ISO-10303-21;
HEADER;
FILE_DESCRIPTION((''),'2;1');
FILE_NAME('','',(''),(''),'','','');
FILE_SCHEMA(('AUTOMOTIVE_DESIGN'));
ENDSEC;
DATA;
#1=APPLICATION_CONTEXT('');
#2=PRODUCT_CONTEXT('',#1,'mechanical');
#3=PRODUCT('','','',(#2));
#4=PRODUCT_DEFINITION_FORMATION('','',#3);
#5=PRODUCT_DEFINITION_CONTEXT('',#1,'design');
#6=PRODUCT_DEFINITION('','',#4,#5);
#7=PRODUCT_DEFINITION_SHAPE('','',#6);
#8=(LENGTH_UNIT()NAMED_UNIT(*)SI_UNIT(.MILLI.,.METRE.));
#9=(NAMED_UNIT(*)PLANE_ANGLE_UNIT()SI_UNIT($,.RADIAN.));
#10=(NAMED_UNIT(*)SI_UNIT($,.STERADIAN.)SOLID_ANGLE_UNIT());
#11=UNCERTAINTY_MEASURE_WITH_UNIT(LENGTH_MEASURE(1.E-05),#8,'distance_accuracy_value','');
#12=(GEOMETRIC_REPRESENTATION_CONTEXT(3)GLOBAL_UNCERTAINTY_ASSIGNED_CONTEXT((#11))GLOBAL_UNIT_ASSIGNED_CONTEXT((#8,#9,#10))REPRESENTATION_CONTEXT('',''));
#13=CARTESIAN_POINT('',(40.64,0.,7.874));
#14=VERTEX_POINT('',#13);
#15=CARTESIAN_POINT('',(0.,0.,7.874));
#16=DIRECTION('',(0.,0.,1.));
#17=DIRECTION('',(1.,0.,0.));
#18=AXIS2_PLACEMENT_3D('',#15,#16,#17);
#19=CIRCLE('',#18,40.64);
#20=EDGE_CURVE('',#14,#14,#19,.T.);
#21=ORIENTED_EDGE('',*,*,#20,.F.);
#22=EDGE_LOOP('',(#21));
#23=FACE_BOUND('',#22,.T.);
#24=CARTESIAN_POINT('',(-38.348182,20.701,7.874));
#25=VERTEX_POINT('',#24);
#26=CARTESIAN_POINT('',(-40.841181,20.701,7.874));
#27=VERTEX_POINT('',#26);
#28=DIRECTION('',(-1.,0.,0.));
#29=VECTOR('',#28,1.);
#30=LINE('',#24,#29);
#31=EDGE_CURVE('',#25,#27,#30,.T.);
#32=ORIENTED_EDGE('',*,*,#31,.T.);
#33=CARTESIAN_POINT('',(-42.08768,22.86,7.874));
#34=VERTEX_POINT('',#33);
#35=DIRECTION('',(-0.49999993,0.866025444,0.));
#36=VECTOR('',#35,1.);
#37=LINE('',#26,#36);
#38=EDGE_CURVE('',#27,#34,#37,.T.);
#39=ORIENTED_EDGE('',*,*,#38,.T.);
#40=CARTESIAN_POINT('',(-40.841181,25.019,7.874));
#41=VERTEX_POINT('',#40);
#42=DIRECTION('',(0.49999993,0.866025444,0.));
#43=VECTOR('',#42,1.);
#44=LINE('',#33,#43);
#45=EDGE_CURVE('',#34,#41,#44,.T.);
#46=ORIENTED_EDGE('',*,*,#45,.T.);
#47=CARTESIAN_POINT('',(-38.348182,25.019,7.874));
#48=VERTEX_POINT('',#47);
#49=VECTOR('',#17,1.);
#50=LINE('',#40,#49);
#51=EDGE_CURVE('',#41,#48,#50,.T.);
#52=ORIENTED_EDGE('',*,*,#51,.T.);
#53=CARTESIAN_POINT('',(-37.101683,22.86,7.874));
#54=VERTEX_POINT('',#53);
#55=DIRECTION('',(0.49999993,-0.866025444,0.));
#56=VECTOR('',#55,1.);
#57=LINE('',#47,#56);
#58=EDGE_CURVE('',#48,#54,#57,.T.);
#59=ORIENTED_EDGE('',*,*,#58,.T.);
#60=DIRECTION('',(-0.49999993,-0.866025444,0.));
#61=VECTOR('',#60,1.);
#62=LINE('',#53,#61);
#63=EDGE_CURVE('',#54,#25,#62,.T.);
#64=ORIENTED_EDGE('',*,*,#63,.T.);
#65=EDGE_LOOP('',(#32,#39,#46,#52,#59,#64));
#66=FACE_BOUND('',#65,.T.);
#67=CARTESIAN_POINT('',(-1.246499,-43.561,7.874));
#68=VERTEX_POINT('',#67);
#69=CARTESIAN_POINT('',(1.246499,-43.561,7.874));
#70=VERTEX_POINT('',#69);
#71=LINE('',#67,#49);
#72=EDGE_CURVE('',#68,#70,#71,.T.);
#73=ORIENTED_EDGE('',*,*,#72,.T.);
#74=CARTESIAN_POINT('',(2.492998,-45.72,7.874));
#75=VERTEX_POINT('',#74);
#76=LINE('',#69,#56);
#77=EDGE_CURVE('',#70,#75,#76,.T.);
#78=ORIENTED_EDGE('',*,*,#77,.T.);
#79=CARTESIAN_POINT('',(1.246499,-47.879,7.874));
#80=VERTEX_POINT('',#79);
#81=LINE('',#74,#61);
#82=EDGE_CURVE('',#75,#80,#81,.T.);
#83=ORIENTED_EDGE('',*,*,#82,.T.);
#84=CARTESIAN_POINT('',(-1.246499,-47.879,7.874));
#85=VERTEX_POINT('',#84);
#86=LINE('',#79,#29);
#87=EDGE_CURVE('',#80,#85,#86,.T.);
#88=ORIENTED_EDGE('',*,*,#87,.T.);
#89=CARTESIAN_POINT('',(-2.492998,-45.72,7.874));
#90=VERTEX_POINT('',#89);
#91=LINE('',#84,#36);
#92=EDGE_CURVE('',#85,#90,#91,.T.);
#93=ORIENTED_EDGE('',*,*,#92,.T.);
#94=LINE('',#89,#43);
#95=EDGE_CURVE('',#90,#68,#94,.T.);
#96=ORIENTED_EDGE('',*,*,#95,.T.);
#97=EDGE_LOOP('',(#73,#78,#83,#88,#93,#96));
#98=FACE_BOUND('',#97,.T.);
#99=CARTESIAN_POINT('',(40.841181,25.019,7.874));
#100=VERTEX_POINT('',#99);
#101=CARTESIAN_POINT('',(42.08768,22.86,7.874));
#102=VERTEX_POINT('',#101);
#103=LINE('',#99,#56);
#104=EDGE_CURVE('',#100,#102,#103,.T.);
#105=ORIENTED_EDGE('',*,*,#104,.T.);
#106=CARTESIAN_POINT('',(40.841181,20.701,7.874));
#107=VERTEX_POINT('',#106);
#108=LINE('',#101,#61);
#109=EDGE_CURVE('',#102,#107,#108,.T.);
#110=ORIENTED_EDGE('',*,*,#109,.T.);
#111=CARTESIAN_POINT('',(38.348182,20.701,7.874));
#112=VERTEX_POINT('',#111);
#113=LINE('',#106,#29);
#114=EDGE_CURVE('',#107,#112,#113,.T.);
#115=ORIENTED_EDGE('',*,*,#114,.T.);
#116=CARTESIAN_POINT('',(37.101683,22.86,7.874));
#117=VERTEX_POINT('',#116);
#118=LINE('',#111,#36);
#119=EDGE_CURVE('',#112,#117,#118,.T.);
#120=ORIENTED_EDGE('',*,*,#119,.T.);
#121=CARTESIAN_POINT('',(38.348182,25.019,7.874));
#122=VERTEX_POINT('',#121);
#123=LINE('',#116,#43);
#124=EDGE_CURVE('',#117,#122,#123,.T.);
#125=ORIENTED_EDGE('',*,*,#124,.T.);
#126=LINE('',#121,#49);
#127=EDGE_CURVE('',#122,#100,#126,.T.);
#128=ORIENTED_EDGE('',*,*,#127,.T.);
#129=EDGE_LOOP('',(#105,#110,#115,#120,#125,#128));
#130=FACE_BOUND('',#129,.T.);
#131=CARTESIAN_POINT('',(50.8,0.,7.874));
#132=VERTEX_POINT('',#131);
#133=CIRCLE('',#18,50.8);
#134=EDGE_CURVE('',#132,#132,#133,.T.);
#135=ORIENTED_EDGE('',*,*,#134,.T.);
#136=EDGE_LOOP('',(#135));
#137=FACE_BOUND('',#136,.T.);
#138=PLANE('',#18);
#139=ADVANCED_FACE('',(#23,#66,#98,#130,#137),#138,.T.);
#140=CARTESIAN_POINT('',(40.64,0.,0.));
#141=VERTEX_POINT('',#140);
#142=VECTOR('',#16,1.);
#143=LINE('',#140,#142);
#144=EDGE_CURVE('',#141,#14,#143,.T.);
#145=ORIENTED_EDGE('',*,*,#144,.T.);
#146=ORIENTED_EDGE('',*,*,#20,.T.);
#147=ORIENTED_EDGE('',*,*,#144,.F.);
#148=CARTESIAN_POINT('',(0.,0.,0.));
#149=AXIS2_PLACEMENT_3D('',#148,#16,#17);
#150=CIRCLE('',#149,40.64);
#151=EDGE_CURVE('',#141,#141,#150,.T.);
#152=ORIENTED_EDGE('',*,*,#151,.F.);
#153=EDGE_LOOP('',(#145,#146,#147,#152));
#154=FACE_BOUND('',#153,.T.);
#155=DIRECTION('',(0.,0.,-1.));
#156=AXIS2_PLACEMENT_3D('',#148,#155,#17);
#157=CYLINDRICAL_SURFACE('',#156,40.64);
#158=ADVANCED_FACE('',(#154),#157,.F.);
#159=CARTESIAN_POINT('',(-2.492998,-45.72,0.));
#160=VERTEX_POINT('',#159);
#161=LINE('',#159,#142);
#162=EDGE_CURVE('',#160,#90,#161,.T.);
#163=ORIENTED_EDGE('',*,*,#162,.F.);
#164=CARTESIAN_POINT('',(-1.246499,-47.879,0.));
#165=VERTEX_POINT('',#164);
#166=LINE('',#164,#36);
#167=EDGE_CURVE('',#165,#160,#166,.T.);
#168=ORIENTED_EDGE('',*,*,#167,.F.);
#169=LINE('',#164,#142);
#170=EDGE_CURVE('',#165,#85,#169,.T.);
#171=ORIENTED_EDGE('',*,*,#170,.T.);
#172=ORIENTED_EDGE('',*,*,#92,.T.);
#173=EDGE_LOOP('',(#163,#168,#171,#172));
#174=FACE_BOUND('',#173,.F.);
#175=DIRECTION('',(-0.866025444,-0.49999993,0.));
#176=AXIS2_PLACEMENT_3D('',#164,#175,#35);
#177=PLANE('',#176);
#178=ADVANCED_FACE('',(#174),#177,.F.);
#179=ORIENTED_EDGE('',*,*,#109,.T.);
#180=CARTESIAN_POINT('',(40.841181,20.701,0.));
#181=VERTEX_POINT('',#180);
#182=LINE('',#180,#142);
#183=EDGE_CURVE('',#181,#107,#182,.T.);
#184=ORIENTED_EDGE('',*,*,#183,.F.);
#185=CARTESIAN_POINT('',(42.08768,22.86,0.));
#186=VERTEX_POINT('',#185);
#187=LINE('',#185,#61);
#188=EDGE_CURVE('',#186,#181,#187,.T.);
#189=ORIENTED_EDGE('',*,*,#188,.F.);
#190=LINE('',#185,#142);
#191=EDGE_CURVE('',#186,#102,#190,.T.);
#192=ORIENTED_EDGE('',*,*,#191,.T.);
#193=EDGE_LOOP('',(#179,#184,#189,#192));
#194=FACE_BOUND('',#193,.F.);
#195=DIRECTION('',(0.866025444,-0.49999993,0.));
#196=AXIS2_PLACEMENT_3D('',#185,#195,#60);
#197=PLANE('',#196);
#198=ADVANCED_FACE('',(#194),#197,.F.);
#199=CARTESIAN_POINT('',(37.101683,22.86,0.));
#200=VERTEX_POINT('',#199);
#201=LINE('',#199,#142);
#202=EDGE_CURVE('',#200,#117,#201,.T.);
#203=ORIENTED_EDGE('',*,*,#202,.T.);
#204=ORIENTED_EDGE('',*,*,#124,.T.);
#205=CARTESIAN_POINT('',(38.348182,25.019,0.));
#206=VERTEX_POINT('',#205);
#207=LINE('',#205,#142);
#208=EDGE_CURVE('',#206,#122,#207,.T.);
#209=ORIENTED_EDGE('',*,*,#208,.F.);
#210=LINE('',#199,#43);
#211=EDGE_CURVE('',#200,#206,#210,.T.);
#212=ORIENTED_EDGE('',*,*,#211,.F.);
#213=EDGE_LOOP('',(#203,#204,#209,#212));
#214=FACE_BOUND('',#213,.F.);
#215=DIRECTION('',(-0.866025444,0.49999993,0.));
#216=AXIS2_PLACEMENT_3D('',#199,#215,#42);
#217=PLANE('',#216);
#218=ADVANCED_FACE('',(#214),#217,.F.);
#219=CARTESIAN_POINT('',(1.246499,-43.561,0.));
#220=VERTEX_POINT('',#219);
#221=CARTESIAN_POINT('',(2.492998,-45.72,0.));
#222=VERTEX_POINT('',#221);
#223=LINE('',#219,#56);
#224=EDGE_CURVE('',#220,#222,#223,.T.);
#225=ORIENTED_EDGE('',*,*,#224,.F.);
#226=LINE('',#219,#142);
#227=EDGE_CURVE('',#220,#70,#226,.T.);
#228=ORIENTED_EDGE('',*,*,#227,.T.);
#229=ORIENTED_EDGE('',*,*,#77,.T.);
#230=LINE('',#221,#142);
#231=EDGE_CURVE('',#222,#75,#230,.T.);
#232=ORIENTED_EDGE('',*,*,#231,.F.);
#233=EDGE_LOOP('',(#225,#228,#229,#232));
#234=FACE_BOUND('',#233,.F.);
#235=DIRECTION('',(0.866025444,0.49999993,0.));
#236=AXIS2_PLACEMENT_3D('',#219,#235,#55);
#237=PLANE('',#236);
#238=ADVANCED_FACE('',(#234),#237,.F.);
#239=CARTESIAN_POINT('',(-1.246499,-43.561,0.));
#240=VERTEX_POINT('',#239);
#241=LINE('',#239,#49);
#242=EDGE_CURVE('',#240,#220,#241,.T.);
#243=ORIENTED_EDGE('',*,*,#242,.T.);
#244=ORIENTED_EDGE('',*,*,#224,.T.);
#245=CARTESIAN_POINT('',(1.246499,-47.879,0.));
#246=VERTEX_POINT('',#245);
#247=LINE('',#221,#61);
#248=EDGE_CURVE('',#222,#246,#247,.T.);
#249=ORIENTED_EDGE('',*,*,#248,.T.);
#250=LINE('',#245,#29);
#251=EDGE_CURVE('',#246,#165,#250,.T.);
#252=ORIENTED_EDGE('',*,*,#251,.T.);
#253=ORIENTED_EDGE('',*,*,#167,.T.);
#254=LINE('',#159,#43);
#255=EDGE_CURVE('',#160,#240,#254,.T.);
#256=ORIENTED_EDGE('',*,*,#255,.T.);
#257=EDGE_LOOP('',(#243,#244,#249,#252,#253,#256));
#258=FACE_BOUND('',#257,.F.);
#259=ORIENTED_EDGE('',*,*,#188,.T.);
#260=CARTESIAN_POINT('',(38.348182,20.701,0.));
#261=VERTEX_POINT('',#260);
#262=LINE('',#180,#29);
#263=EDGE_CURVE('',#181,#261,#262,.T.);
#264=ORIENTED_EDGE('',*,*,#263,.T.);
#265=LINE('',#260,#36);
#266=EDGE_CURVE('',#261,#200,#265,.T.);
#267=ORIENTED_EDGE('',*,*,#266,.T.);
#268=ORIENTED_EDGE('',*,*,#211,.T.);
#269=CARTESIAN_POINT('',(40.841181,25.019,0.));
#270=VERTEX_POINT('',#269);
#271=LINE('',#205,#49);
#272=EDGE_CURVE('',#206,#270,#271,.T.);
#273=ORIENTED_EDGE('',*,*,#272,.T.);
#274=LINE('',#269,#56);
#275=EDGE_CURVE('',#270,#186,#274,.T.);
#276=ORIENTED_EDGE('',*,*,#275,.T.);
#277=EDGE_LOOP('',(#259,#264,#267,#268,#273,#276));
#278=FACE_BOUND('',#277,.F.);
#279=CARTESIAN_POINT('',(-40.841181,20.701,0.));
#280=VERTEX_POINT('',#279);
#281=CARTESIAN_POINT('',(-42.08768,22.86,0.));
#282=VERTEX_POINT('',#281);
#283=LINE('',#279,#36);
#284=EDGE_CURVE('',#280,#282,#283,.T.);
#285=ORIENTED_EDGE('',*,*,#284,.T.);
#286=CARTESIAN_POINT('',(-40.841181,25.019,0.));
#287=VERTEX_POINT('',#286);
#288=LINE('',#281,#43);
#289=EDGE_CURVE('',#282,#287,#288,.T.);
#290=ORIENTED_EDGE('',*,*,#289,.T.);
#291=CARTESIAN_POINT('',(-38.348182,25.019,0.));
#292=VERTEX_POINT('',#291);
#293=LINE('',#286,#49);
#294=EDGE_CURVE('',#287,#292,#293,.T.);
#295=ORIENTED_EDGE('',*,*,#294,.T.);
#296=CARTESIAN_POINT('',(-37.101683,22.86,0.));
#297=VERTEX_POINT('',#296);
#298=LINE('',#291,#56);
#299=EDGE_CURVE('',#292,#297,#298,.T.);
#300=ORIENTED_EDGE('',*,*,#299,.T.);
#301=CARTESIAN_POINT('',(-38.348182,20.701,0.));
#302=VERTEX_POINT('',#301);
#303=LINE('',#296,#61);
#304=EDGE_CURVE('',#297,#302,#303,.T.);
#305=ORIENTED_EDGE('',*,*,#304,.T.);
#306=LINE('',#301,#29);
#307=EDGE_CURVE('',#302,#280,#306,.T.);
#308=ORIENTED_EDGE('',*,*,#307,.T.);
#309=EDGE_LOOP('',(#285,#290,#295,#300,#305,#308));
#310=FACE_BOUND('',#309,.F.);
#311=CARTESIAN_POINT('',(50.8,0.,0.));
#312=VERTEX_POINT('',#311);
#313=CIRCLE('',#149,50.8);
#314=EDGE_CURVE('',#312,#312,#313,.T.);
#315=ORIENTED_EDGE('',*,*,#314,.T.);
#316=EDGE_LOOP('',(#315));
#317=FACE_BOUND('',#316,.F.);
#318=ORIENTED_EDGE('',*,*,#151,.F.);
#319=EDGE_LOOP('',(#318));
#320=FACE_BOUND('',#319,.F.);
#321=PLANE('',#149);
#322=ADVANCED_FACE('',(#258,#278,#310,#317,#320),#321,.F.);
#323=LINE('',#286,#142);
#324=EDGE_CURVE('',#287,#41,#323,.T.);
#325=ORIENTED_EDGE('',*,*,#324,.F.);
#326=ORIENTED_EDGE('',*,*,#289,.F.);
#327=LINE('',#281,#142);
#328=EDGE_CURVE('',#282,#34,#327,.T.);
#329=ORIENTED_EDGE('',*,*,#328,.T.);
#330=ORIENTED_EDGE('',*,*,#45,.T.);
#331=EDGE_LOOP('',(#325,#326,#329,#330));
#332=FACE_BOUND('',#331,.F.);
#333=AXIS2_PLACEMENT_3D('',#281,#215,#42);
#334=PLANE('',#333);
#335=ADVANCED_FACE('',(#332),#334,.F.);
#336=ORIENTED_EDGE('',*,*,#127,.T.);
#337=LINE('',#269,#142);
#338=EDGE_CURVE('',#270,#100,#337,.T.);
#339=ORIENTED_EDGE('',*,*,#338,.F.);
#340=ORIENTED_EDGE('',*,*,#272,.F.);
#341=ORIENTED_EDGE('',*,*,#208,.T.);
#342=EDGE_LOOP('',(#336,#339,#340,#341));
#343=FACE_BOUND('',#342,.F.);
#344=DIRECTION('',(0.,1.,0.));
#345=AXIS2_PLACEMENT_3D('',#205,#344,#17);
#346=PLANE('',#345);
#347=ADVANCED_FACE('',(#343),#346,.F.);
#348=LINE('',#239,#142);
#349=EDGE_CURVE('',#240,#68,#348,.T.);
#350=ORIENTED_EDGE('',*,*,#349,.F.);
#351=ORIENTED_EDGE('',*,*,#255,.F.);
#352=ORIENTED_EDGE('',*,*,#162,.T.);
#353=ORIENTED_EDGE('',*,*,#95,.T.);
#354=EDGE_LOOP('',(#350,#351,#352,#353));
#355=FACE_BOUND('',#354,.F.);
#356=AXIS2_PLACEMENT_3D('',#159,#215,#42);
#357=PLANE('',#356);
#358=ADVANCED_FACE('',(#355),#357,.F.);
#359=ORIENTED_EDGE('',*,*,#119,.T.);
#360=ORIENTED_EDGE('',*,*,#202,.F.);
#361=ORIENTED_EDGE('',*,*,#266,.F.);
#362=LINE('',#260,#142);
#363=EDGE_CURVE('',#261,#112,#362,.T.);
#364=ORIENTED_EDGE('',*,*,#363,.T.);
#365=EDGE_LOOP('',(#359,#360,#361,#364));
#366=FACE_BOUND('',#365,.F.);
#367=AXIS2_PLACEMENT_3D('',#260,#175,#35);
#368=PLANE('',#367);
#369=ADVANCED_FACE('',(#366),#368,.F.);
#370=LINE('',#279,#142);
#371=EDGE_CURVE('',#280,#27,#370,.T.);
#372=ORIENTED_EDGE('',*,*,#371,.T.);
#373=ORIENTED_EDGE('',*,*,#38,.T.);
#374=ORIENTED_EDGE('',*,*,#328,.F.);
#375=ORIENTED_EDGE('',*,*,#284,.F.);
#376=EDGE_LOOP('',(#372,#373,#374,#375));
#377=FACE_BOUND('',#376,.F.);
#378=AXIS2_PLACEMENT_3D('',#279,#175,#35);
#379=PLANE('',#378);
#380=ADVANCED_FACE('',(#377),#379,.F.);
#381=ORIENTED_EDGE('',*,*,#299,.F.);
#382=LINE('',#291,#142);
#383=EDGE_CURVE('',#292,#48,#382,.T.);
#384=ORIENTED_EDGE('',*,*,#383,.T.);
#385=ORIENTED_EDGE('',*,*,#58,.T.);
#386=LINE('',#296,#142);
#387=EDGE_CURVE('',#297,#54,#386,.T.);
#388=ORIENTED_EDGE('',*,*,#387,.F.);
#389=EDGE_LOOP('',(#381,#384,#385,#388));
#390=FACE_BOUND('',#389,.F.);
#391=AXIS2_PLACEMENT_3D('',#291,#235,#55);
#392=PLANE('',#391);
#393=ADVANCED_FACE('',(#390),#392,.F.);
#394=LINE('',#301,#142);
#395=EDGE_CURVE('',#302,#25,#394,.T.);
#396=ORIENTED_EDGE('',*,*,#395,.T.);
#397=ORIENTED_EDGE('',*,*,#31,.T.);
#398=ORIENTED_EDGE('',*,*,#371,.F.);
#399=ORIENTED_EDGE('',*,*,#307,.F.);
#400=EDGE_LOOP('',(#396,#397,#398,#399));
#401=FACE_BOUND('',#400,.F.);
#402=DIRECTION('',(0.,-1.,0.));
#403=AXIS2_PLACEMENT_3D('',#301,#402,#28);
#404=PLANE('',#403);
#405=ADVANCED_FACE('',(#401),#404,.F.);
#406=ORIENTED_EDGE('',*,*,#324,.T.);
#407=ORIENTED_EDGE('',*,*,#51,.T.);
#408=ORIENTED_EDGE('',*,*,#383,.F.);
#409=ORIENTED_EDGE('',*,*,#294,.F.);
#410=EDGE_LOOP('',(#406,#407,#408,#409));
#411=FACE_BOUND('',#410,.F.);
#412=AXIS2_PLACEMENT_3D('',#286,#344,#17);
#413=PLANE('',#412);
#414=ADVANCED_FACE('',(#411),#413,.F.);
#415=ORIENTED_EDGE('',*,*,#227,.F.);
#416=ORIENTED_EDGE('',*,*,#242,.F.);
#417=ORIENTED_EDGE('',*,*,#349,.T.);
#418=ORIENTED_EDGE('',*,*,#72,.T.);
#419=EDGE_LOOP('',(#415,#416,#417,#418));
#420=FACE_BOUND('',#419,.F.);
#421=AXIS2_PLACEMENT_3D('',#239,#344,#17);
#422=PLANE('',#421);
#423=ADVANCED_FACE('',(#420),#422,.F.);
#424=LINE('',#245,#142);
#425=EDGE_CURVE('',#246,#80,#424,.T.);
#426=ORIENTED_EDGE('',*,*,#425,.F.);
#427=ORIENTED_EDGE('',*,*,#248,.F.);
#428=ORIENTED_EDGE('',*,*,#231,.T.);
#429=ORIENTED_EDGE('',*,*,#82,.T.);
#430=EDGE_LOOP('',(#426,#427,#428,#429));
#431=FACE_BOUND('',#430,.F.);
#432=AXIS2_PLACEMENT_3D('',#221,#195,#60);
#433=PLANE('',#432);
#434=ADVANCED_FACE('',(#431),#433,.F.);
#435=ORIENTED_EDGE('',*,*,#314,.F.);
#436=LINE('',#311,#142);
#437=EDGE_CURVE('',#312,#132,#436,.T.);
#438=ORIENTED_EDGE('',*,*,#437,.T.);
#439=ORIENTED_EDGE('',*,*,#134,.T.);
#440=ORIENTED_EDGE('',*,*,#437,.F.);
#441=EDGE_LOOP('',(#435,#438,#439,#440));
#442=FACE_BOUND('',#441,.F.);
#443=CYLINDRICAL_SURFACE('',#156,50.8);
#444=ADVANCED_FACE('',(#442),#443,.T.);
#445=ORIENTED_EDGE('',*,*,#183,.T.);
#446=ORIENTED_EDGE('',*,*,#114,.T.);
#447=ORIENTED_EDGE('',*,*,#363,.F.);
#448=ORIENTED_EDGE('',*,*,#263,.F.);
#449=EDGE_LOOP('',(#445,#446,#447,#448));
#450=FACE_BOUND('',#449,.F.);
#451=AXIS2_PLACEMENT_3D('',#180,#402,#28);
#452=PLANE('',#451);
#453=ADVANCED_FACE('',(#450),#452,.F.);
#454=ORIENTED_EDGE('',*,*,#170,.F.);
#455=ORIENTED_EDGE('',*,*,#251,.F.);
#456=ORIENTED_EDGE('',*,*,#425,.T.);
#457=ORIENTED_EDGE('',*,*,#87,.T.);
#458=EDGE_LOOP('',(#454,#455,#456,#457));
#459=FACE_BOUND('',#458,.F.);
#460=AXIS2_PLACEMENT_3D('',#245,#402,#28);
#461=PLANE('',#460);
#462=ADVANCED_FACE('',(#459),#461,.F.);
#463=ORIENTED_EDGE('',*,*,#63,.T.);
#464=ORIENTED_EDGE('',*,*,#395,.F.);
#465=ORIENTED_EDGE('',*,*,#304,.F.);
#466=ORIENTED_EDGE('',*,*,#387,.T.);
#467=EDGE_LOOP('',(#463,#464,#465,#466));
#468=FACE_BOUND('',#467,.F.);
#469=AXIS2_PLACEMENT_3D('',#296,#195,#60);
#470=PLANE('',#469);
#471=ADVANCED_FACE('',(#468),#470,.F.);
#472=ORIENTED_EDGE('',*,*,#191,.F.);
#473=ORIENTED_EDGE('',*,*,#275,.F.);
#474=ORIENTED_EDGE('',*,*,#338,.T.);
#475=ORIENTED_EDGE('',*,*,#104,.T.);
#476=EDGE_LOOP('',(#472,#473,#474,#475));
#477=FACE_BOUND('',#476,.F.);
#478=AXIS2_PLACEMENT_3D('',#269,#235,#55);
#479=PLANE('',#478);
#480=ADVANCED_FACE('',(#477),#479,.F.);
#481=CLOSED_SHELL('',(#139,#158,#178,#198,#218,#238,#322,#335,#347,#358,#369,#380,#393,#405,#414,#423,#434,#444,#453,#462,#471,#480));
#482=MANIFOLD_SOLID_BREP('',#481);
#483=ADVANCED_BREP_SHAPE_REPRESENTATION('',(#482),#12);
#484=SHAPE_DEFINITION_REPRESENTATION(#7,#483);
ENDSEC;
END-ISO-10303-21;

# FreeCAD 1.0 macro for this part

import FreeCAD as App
import Part
import Sketcher

V = App.Vector
Q = App.Units.Quantity

doc = App.newDocument("Part")
body = doc.addObject("PartDesign::Body", "Body")

# Sketch on XY plane
sketch1 = body.newObject("Sketcher::SketchObject", "Sketch")
sketch1.AttachmentSupport = (doc.getObject("XY_Plane"), [""])
sketch1.MapMode = "FlatFace"
sketch1.addGeometry([
    Part.Circle(V(0, 0, 0), V(0, 0, 1), 50.8),  # 0
    Part.LineSegment(V(1.246499, -43.561, 0), V(2.492998, -45.72, 0)),  # 1
    Part.LineSegment(V(2.492998, -45.72, 0), V(1.246499, -47.879, 0)),  # 2
    Part.LineSegment(V(1.246499, -47.879, 0), V(-1.246499, -47.879, 0)),  # 3
    Part.LineSegment(V(-1.246499, -47.879, 0), V(-2.492998, -45.72, 0)),  # 4
    Part.LineSegment(V(-2.492998, -45.72, 0), V(-1.246499, -43.561, 0)),  # 5
    Part.LineSegment(V(-1.246499, -43.561, 0), V(1.246499, -43.561, 0)),  # 6
    Part.LineSegment(V(-40.841181, 20.701, 0), V(-42.08768, 22.86, 0)),  # 7
    Part.LineSegment(V(-42.08768, 22.86, 0), V(-40.841181, 25.019, 0)),  # 8
    Part.LineSegment(V(-40.841181, 25.019, 0), V(-38.348182, 25.019, 0)),  # 9
    Part.LineSegment(V(-38.348182, 25.019, 0), V(-37.101683, 22.86, 0)),  # 10
    Part.LineSegment(V(-37.101683, 22.86, 0), V(-38.348182, 20.701, 0)),  # 11
    Part.LineSegment(V(-38.348182, 20.701, 0), V(-40.841181, 20.701, 0)),  # 12
    Part.Circle(V(0, 0, 0), V(0, 0, 1), 40.64),  # 13
    Part.LineSegment(V(38.348182, 20.701, 0), V(37.101683, 22.86, 0)),  # 14
    Part.LineSegment(V(37.101683, 22.86, 0), V(38.348182, 25.019, 0)),  # 15
    Part.LineSegment(V(38.348182, 25.019, 0), V(40.841181, 25.019, 0)),  # 16
    Part.LineSegment(V(40.841181, 25.019, 0), V(42.08768, 22.86, 0)),  # 17
    Part.LineSegment(V(42.08768, 22.86, 0), V(40.841181, 20.701, 0)),  # 18
    Part.LineSegment(V(40.841181, 20.701, 0), V(38.348182, 20.701, 0)),  # 19
], False)
sketch1.addConstraint([
    Sketcher.Constraint("Coincident", 1, 2, 2, 1),
    Sketcher.Constraint("Coincident", 2, 2, 3, 1),
    Sketcher.Constraint("Coincident", 3, 2, 4, 1),
    Sketcher.Constraint("Coincident", 4, 2, 5, 1),
    Sketcher.Constraint("Coincident", 5, 2, 6, 1),
    Sketcher.Constraint("Coincident", 6, 2, 1, 1),
    Sketcher.Constraint("Coincident", 7, 2, 8, 1),
    Sketcher.Constraint("Coincident", 8, 2, 9, 1),
    Sketcher.Constraint("Coincident", 9, 2, 10, 1),
    Sketcher.Constraint("Coincident", 10, 2, 11, 1),
    Sketcher.Constraint("Coincident", 11, 2, 12, 1),
    Sketcher.Constraint("Coincident", 12, 2, 7, 1),
    Sketcher.Constraint("Coincident", 14, 2, 15, 1),
    Sketcher.Constraint("Coincident", 15, 2, 16, 1),
    Sketcher.Constraint("Coincident", 16, 2, 17, 1),
    Sketcher.Constraint("Coincident", 17, 2, 18, 1),
    Sketcher.Constraint("Coincident", 18, 2, 19, 1),
    Sketcher.Constraint("Coincident", 19, 2, 14, 1),
    Sketcher.Constraint("Horizontal", 3),
    Sketcher.Constraint("Horizontal", 6),
    Sketcher.Constraint("Horizontal", 9),
    Sketcher.Constraint("Horizontal", 12),
    Sketcher.Constraint("Horizontal", 16),
    Sketcher.Constraint("Horizontal", 19),
    Sketcher.Constraint("Coincident", 0, 3, -1, 1),
    Sketcher.Constraint("Coincident", 13, 3, -1, 1),
    Sketcher.Constraint("Symmetric", 1, 2, 4, 2, -2),
    Sketcher.Constraint("Symmetric", 10, 2, 14, 2, -2),
    Sketcher.Constraint("Symmetric", 9, 2, 15, 2, -2),
    Sketcher.Constraint("Symmetric", 7, 2, 17, 2, -2),
    Sketcher.Constraint("Symmetric", 12, 2, 18, 2, -2),
    Sketcher.Constraint("Parallel", 1, 4),
    Sketcher.Constraint("Parallel", 2, 5),
    Sketcher.Constraint("Parallel", 4, 7),
    Sketcher.Constraint("Parallel", 5, 8),
    Sketcher.Constraint("Parallel", 7, 10),
    Sketcher.Constraint("Parallel", 8, 11),
    Sketcher.Constraint("Parallel", 10, 14),
    Sketcher.Constraint("Parallel", 11, 15),
    Sketcher.Constraint("Parallel", 14, 17),
    Sketcher.Constraint("Horizontal", 7, 2, 10, 2),
    Sketcher.Constraint("Vertical", 3, 2, 5, 2),
    Sketcher.Constraint("Vertical", 9, 2, 11, 2),
    Sketcher.Constraint("Equal", 6, 9),
    Sketcher.Constraint("Equal", 5, 7),
    Sketcher.Constraint("Diameter", 0, Q("4 in")),
    Sketcher.Constraint("Diameter", 13, Q("3.2 in")),
    Sketcher.Constraint("Angle", 1, Q("-60.000005 deg")),
    Sketcher.Constraint("DistanceY", 1, 2, -1, 1, Q("1.8 in")),
    Sketcher.Constraint("DistanceY", -1, 1, 7, 2, Q("0.9 in")),
    Sketcher.Constraint("DistanceY", 3, 2, 5, 2, Q("0.17 in")),
    Sketcher.Constraint("DistanceX", 3, 2, 3, 1, Q("2.492998 mm")),
    Sketcher.Constraint("DistanceX", 7, 2, -1, 1, Q("42.08768 mm")),
])
pad1 = body.newObject("PartDesign::Pad", "Pad")
pad1.Profile = sketch1
pad1.Length = Q("0.31 in")

doc.recompute()
